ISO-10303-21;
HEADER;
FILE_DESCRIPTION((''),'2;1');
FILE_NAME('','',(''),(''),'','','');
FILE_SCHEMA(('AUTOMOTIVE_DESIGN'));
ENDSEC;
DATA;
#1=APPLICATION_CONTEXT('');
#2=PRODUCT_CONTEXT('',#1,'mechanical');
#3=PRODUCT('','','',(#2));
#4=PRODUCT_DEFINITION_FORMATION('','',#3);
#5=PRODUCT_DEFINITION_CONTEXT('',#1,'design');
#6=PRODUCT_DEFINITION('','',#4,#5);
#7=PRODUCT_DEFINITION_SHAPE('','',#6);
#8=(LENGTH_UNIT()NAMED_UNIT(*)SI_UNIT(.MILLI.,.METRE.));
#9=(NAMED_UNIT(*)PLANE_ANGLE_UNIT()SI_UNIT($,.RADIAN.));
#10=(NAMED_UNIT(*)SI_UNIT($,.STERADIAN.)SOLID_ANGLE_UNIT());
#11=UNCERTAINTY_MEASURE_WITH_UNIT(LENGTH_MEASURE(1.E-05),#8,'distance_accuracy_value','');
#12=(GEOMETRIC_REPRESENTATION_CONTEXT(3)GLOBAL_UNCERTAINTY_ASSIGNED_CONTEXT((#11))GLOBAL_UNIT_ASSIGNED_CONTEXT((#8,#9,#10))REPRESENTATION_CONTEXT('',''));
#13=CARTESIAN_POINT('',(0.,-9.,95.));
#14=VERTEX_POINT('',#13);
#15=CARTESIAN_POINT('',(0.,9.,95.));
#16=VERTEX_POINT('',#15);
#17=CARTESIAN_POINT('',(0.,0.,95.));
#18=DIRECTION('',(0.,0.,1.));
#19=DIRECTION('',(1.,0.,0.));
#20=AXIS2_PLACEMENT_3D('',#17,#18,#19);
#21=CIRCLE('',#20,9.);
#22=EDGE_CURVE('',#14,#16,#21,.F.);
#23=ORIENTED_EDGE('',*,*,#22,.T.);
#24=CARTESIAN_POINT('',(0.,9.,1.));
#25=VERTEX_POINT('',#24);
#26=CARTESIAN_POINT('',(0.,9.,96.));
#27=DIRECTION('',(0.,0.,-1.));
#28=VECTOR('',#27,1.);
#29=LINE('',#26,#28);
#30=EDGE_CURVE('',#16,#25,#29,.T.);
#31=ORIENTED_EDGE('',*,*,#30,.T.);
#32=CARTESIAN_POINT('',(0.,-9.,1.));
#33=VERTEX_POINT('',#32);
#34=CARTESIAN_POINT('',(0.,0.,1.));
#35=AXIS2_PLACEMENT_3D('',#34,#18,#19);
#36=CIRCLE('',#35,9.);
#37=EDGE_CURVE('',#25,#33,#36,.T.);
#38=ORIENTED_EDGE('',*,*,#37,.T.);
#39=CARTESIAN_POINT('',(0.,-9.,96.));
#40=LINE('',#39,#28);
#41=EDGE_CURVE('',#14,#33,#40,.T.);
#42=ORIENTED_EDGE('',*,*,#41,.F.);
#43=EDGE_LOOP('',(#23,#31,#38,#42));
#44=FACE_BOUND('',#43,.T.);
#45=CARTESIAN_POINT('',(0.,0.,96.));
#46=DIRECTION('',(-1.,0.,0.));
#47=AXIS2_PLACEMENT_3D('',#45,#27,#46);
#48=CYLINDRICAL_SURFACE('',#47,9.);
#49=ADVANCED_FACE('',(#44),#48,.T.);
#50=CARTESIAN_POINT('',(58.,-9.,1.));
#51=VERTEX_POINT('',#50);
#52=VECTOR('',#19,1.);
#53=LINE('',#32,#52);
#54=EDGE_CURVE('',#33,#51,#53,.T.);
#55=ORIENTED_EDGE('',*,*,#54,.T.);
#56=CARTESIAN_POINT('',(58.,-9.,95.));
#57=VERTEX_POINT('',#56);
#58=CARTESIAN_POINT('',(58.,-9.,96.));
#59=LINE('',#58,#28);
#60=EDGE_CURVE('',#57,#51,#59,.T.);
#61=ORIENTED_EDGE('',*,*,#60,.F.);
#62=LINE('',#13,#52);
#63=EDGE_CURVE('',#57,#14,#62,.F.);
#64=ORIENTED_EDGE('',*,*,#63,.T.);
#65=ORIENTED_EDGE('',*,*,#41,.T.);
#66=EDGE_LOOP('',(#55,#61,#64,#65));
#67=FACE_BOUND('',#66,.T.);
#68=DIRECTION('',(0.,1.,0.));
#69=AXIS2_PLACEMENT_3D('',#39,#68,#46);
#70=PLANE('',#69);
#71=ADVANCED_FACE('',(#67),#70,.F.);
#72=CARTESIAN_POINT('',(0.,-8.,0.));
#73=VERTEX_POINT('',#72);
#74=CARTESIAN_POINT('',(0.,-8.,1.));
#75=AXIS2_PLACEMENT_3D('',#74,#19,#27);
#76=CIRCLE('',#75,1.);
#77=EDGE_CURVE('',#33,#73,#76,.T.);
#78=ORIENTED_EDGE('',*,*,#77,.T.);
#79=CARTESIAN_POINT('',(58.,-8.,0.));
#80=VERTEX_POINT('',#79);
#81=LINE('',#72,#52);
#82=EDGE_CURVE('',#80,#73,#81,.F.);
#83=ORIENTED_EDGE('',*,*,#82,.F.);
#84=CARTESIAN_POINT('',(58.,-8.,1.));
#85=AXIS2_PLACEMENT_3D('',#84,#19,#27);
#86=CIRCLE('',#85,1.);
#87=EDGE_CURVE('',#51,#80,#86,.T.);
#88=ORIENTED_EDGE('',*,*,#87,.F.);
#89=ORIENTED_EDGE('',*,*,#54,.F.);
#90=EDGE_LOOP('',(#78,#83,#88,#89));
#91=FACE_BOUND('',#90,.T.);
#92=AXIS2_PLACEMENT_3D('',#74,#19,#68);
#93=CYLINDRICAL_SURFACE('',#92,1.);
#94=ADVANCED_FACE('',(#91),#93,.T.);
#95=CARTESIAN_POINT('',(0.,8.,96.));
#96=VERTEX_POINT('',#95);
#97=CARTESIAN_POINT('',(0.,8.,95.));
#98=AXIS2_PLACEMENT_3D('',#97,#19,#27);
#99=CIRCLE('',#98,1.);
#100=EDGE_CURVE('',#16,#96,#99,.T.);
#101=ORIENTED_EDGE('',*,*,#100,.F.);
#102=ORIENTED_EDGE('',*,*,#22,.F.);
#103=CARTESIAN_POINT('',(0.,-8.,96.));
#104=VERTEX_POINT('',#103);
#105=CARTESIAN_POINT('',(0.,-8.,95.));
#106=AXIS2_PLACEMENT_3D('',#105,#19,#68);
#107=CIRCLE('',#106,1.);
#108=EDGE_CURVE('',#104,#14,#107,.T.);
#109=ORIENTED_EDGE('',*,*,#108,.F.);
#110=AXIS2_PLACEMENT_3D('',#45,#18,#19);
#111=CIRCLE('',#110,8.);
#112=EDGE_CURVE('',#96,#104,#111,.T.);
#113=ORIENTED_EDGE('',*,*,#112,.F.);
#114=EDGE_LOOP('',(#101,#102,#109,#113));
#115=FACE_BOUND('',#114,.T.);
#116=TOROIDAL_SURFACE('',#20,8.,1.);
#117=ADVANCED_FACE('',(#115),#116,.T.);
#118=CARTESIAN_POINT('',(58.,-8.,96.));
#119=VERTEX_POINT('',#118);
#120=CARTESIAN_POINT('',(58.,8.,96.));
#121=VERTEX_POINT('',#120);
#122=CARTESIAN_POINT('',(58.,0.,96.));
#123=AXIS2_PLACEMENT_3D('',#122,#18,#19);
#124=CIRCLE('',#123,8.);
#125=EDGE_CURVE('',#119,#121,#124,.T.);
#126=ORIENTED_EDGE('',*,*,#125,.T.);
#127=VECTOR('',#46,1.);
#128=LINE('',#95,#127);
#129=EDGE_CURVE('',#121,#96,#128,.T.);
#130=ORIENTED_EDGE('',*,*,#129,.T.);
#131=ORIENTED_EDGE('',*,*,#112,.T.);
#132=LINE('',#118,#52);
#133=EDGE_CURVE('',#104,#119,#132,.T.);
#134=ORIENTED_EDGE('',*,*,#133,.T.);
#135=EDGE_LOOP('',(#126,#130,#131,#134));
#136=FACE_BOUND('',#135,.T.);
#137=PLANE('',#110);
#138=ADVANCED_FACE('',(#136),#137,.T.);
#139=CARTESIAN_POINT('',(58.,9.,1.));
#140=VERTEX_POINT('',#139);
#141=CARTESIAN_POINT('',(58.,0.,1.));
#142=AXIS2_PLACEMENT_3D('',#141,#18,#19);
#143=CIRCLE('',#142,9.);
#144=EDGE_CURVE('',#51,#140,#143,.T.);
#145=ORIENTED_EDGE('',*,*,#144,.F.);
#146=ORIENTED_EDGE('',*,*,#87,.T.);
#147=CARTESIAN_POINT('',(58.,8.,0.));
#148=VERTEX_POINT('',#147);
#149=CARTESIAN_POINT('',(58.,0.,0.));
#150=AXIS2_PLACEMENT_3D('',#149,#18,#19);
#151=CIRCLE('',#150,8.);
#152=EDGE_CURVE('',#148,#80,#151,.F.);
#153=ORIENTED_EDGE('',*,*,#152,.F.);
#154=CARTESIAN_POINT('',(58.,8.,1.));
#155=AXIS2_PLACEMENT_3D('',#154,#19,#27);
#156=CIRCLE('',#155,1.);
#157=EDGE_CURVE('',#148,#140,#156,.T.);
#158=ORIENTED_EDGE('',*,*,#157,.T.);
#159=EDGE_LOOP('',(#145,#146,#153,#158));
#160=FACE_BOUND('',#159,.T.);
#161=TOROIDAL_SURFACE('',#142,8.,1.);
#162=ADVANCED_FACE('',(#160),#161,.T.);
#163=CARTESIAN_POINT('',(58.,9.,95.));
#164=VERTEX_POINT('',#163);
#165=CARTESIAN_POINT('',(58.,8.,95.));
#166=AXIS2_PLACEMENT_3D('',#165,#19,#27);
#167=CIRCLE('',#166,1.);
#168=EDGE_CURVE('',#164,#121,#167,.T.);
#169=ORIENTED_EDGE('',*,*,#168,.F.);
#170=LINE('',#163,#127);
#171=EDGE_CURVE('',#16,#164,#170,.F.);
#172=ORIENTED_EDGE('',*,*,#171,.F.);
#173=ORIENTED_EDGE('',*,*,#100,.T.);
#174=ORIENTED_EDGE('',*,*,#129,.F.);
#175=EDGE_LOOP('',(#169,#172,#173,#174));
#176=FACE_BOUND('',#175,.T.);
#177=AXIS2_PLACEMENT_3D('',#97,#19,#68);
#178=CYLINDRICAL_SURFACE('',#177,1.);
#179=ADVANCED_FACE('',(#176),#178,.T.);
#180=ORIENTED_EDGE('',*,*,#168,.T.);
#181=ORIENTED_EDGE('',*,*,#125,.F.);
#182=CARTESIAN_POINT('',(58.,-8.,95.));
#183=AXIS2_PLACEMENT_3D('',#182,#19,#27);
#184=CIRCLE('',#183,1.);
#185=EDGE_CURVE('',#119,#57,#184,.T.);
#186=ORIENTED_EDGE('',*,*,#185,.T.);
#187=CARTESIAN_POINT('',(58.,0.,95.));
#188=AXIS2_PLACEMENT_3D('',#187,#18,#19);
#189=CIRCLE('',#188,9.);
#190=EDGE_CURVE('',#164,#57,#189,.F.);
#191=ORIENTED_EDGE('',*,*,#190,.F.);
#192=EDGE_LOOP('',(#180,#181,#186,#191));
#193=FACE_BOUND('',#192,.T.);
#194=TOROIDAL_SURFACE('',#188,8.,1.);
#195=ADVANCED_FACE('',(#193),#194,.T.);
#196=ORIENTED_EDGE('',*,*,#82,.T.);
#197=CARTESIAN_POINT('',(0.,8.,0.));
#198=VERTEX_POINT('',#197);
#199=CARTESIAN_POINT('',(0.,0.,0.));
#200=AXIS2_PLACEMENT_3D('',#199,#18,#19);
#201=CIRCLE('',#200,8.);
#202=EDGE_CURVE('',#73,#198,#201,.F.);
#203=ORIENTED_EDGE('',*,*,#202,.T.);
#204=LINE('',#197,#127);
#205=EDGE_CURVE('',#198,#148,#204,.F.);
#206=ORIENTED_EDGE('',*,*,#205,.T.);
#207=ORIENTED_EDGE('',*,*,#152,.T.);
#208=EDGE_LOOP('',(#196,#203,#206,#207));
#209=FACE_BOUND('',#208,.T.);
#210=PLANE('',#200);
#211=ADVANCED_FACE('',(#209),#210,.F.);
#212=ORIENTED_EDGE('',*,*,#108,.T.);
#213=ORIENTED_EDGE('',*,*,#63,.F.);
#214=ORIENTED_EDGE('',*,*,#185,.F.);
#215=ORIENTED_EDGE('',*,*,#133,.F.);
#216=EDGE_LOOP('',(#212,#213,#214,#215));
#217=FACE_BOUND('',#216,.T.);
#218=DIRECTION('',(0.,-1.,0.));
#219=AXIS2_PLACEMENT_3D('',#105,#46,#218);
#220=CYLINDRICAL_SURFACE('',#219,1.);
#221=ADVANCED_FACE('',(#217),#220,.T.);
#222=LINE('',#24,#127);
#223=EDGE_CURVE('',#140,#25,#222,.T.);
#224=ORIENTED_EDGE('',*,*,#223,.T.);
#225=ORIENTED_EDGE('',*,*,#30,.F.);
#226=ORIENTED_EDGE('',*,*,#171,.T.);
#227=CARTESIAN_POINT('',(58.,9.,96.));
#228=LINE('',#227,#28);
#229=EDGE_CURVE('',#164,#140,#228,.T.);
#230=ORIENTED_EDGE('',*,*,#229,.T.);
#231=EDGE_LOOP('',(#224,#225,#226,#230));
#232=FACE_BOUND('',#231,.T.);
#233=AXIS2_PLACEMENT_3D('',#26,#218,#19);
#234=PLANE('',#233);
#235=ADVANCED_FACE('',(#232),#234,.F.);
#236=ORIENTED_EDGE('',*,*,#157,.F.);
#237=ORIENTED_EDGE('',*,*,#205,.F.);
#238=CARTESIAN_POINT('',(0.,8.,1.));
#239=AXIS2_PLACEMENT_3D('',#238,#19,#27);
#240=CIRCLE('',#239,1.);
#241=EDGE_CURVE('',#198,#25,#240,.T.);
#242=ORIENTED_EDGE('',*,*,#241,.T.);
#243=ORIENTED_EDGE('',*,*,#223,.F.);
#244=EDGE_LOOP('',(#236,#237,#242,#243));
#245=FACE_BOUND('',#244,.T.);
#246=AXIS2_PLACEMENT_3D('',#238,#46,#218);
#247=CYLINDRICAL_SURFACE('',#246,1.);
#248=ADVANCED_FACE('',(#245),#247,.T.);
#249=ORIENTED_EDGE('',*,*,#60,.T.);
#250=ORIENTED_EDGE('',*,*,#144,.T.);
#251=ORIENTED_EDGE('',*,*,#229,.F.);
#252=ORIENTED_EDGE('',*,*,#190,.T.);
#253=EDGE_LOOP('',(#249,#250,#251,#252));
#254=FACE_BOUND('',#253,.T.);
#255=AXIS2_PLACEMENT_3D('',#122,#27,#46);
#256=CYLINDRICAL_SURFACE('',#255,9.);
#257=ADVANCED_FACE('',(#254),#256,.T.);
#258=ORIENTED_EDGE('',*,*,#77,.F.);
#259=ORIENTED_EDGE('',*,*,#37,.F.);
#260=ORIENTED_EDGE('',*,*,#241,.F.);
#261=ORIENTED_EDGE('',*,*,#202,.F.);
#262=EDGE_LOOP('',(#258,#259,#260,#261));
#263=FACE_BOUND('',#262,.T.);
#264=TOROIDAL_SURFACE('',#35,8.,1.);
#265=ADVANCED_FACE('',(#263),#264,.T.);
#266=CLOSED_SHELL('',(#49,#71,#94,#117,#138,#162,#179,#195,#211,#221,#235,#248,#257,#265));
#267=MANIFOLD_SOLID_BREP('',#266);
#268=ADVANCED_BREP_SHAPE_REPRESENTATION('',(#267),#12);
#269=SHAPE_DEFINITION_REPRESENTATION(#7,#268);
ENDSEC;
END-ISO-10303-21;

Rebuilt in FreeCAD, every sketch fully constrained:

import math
import FreeCAD as App
import Part
import Sketcher
from FreeCAD import Vector


def edges_at(feature, points):
    """Names of the edges that pass closest to the given points."""
    edges = feature.Shape.Edges
    near = lambda p: min(range(len(edges)), key=lambda i: edges[i].distToShape(Part.Vertex(*p))[0])
    return sorted({f"Edge{near(p) + 1}" for p in points})

doc = App.newDocument("Part")
body = doc.addObject("PartDesign::Body", "Body")

sketch1 = body.newObject("Sketcher::SketchObject", "Sketch")
sketch1.AttachmentSupport = (doc.getObject("XY_Plane"), [""])
sketch1.MapMode = "FlatFace"
sketch1.addGeometry([
    Part.LineSegment(Vector(58, 9, 0), Vector(0, 9, 0)),
    Part.ArcOfCircle(Part.Circle(Vector(0, 0, 0), Vector(0, 0, 1), 9), math.radians(90), math.radians(270)),
    Part.LineSegment(Vector(0, -9, 0), Vector(58, -9, 0)),
    Part.ArcOfCircle(Part.Circle(Vector(58, 0, 0), Vector(0, 0, 1), 9), math.radians(-90), math.radians(90)),
], False)
sketch1.addConstraint([
    Sketcher.Constraint("Tangent", 0, 2, 1, 1),
    Sketcher.Constraint("Tangent", 1, 2, 2, 1),
    Sketcher.Constraint("Tangent", 2, 2, 3, 1),
    Sketcher.Constraint("Tangent", 3, 2, 0, 1),
    Sketcher.Constraint("Horizontal", 0),
    Sketcher.Constraint("Horizontal", 2),
    Sketcher.Constraint("Coincident", 1, 3, -1, 1),
    Sketcher.Constraint("Radius", 1, 9.0),
    Sketcher.Constraint("DistanceX", 0, 2, 0, 1, 58.0),
])
pad1 = body.newObject("PartDesign::Pad", "Pad")
pad1.Profile = sketch1
pad1.Length = 96
doc.recompute()

fillet = body.newObject("PartDesign::Fillet", "Fillet")
fillet.Base = (pad1, edges_at(pad1, [
    (67, 0, 96),
    (29, 9, 96),
    (-9, 0, 96),
    (29, 9, 0),
    (67, 0, 0),
    (29, -9, 0),
    (-9, 0, 0),
    (29, -9, 96),
]))
fillet.Radius = 1

doc.recompute()
